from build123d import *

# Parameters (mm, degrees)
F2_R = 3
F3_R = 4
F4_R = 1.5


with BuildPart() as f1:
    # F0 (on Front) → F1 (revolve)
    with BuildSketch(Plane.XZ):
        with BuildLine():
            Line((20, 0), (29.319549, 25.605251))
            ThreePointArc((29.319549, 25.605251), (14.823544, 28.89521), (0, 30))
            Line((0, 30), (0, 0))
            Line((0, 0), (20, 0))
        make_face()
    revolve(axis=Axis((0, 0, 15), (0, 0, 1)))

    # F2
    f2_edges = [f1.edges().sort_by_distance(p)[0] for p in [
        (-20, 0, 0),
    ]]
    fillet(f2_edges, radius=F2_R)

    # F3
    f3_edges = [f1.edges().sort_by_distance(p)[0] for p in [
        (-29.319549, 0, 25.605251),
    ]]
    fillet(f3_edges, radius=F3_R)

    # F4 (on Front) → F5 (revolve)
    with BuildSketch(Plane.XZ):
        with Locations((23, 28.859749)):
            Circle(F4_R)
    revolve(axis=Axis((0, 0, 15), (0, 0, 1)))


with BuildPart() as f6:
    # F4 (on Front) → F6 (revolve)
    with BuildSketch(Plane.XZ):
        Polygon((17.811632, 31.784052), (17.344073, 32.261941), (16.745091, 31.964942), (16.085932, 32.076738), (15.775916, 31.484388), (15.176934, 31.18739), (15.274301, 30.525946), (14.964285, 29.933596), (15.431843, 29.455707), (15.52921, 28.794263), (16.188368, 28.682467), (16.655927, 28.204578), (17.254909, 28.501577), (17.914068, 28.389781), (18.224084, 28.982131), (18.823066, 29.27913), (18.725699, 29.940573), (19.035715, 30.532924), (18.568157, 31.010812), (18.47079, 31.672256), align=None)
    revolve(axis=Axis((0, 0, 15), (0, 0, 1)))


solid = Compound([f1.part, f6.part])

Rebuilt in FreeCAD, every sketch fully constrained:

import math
import FreeCAD as App
import Part
import Sketcher

V = App.Vector
Q = App.Units.Quantity


def edges_at(feature, points):
    """Names of the edges that pass closest to the given points."""
    edges = feature.Shape.Edges
    near = lambda p: min(range(len(edges)), key=lambda i: edges[i].distToShape(Part.Vertex(*p))[0])
    return sorted({f"Edge{near(p) + 1}" for p in points})

doc = App.newDocument("Part")
body = doc.addObject("PartDesign::Body", "Body")
body.AllowCompound = True

# Sketch on XZ plane
sketch1 = doc.addObject("Sketcher::SketchObject", "Sketch")
body.addObject(sketch1)
sketch1.AttachmentSupport = (doc.XZ_Plane, [""])
sketch1.MapMode = "FlatFace"
sketch1.addGeometry([
    Part.LineSegment(V(20, 0, 0), V(29.319549, 25.605251, 0)),
    Part.ArcOfCircle(Part.Circle(V(0.000002, -69.999986, 0), V(0, 0, 1), 99.999986), math.radians(72.950636), math.radians(90.000001)),
    Part.LineSegment(V(0, 30, 0), V(0, 0, 0)),
    Part.LineSegment(V(0, 0, 0), V(20, 0, 0)),
], False)
sketch1.addConstraint([
    Sketcher.Constraint("Coincident", 0, 2, 1, 1),
    Sketcher.Constraint("Coincident", 1, 2, 2, 1),
    Sketcher.Constraint("Coincident", 2, 2, 3, 1),
    Sketcher.Constraint("Coincident", 3, 2, 0, 1),
    Sketcher.Constraint("Vertical", 2),
    Sketcher.Constraint("Horizontal", 3),
    Sketcher.Constraint("Coincident", 2, 2, -1, 1),
    Sketcher.Constraint("PointOnObject", 1, 3, -2),
    Sketcher.Constraint("DistanceX", 3, 1, 3, 2, 20.0),
    Sketcher.Constraint("DistanceY", 2, 2, 2, 1, 30.0),
    Sketcher.Constraint("Angle", 0, Q("70 deg")),
    Sketcher.Constraint("Radius", 1, 99.999986),
])
revolution = doc.addObject("PartDesign::Revolution", "Revolution")
body.addObject(revolution)
revolution.Profile = sketch1
revolution.ReferenceAxis = (sketch1, ["V_Axis"])
revolution.Angle = 360
doc.recompute()

fillet = doc.addObject("PartDesign::Fillet", "Fillet")
body.addObject(fillet)
fillet.Base = (revolution, edges_at(revolution, [(-20, 0, 0)]))
fillet.Radius = 3
doc.recompute()

fillet2 = doc.addObject("PartDesign::Fillet", "Fillet001")
body.addObject(fillet2)
fillet2.Base = (fillet, edges_at(fillet, [(-29.32, 0, 25.605)]))
fillet2.Radius = 4

# Sketch on XZ plane
sketch2 = doc.addObject("Sketcher::SketchObject", "Sketch001")
body.addObject(sketch2)
sketch2.AttachmentSupport = (doc.XZ_Plane, [""])
sketch2.MapMode = "FlatFace"
sketch2.addGeometry(Part.Circle(V(23, 28.859749, 0), V(0, 0, 1), 1.5), False)
sketch2.addConstraint([
    Sketcher.Constraint("Diameter", 0, 3.0),
    Sketcher.Constraint("DistanceX", -1, 1, 0, 3, 23.0),
    Sketcher.Constraint("DistanceY", -1, 1, 0, 3, 28.859749),
])
revolution2 = doc.addObject("PartDesign::Revolution", "Revolution001")
body.addObject(revolution2)
revolution2.Profile = sketch2
revolution2.ReferenceAxis = (sketch2, ["V_Axis"])
revolution2.Angle = 360
body2 = doc.addObject("PartDesign::Body", "Body001")

# Sketch on XZ plane
sketch3 = doc.addObject("Sketcher::SketchObject", "Sketch002")
body2.addObject(sketch3)
sketch3.AttachmentSupport = (doc.getObject("XZ_Plane001"), [""])
sketch3.MapMode = "FlatFace"
sketch3.addGeometry([
    Part.LineSegment(V(17.811632, 31.784052, 0), V(17.344073, 32.261941, 0)),  # 0
    Part.LineSegment(V(17.344073, 32.261941, 0), V(16.745091, 31.964942, 0)),  # 1
    Part.LineSegment(V(16.745091, 31.964942, 0), V(16.085932, 32.076738, 0)),  # 2
    Part.LineSegment(V(16.085932, 32.076738, 0), V(15.775916, 31.484388, 0)),  # 3
    Part.LineSegment(V(15.775916, 31.484388, 0), V(15.176934, 31.18739, 0)),  # 4
    Part.LineSegment(V(15.176934, 31.18739, 0), V(15.274301, 30.525946, 0)),  # 5
    Part.LineSegment(V(15.274301, 30.525946, 0), V(14.964285, 29.933596, 0)),  # 6
    Part.LineSegment(V(14.964285, 29.933596, 0), V(15.431843, 29.455707, 0)),  # 7
    Part.LineSegment(V(15.431843, 29.455707, 0), V(15.52921, 28.794263, 0)),  # 8
    Part.LineSegment(V(15.52921, 28.794263, 0), V(16.188368, 28.682467, 0)),  # 9
    Part.LineSegment(V(16.188368, 28.682467, 0), V(16.655927, 28.204578, 0)),  # 10
    Part.LineSegment(V(16.655927, 28.204578, 0), V(17.254909, 28.501577, 0)),  # 11
    Part.LineSegment(V(17.254909, 28.501577, 0), V(17.914068, 28.389781, 0)),  # 12
    Part.LineSegment(V(17.914068, 28.389781, 0), V(18.224084, 28.982131, 0)),  # 13
    Part.LineSegment(V(18.224084, 28.982131, 0), V(18.823066, 29.27913, 0)),  # 14
    Part.LineSegment(V(18.823066, 29.27913, 0), V(18.725699, 29.940573, 0)),  # 15
    Part.LineSegment(V(18.725699, 29.940573, 0), V(19.035715, 30.532924, 0)),  # 16
    Part.LineSegment(V(19.035715, 30.532924, 0), V(18.568157, 31.010812, 0)),  # 17
    Part.LineSegment(V(18.568157, 31.010812, 0), V(18.47079, 31.672256, 0)),  # 18
    Part.LineSegment(V(18.47079, 31.672256, 0), V(17.811632, 31.784052, 0)),  # 19
], False)
sketch3.addConstraint([
    Sketcher.Constraint("Coincident", 0, 2, 1, 1),
    Sketcher.Constraint("Coincident", 1, 2, 2, 1),
    Sketcher.Constraint("Coincident", 2, 2, 3, 1),
    Sketcher.Constraint("Coincident", 3, 2, 4, 1),
    Sketcher.Constraint("Coincident", 4, 2, 5, 1),
    Sketcher.Constraint("Coincident", 5, 2, 6, 1),
    Sketcher.Constraint("Coincident", 6, 2, 7, 1),
    Sketcher.Constraint("Coincident", 7, 2, 8, 1),
    Sketcher.Constraint("Coincident", 8, 2, 9, 1),
    Sketcher.Constraint("Coincident", 9, 2, 10, 1),
    Sketcher.Constraint("Coincident", 10, 2, 11, 1),
    Sketcher.Constraint("Coincident", 11, 2, 12, 1),
    Sketcher.Constraint("Coincident", 12, 2, 13, 1),
    Sketcher.Constraint("Coincident", 13, 2, 14, 1),
    Sketcher.Constraint("Coincident", 14, 2, 15, 1),
    Sketcher.Constraint("Coincident", 15, 2, 16, 1),
    Sketcher.Constraint("Coincident", 16, 2, 17, 1),
    Sketcher.Constraint("Coincident", 17, 2, 18, 1),
    Sketcher.Constraint("Coincident", 18, 2, 19, 1),
    Sketcher.Constraint("Coincident", 19, 2, 0, 1),
    Sketcher.Constraint("Parallel", 1, 4),
    Sketcher.Constraint("Parallel", 3, 6),
    Sketcher.Constraint("Parallel", 0, 7),
    Sketcher.Constraint("Parallel", 5, 8),
    Sketcher.Constraint("Parallel", 2, 9),
    Sketcher.Constraint("Parallel", 7, 10),
    Sketcher.Constraint("Parallel", 4, 11),
    Sketcher.Constraint("Parallel", 9, 12),
    Sketcher.Constraint("Parallel", 6, 13),
    Sketcher.Constraint("Parallel", 11, 14),
    Sketcher.Constraint("Parallel", 8, 15),
    Sketcher.Constraint("Parallel", 13, 16),
    Sketcher.Constraint("Parallel", 10, 17),
    Sketcher.Constraint("Parallel", 15, 18),
    Sketcher.Constraint("Parallel", 12, 19),
    Sketcher.Constraint("Equal", 0, 1),
    Sketcher.Constraint("Equal", 1, 2),
    Sketcher.Constraint("Equal", 2, 3),
    Sketcher.Constraint("Equal", 3, 4),
    Sketcher.Constraint("Equal", 4, 5),
    Sketcher.Constraint("Equal", 5, 6),
    Sketcher.Constraint("Equal", 6, 7),
    Sketcher.Constraint("Equal", 7, 8),
    Sketcher.Constraint("Equal", 8, 9),
    Sketcher.Constraint("Equal", 9, 10),
    Sketcher.Constraint("Equal", 10, 11),
    Sketcher.Constraint("Equal", 11, 12),
    Sketcher.Constraint("Equal", 12, 13),
    Sketcher.Constraint("Equal", 13, 14),
    Sketcher.Constraint("Equal", 14, 15),
    Sketcher.Constraint("Equal", 15, 16),
    Sketcher.Constraint("Equal", 16, 17),
    Sketcher.Constraint("DistanceY", 1, 2, 0, 2, 0.296999),
    Sketcher.Constraint("DistanceX", 4, 2, 2, 2, 0.908998),
    Sketcher.Constraint("DistanceX", -1, 1, 5, 2, 15.274301),
    Sketcher.Constraint("DistanceX", -1, 1, 15, 2, 18.725699),
    Sketcher.Constraint("Distance", 1, 0.668571),
    Sketcher.Constraint("DistanceY", -1, 1, 0, 2, 32.261941),
    Sketcher.Constraint("DistanceX", -1, 1, 1, 2, 16.745091),
    Sketcher.Constraint("DistanceX", -1, 1, 2, 2, 16.085932),
])
revolution3 = doc.addObject("PartDesign::Revolution", "Revolution002")
body2.addObject(revolution3)
revolution3.Profile = sketch3
revolution3.ReferenceAxis = (sketch3, ["V_Axis"])
revolution3.Angle = 360

doc.recompute()
